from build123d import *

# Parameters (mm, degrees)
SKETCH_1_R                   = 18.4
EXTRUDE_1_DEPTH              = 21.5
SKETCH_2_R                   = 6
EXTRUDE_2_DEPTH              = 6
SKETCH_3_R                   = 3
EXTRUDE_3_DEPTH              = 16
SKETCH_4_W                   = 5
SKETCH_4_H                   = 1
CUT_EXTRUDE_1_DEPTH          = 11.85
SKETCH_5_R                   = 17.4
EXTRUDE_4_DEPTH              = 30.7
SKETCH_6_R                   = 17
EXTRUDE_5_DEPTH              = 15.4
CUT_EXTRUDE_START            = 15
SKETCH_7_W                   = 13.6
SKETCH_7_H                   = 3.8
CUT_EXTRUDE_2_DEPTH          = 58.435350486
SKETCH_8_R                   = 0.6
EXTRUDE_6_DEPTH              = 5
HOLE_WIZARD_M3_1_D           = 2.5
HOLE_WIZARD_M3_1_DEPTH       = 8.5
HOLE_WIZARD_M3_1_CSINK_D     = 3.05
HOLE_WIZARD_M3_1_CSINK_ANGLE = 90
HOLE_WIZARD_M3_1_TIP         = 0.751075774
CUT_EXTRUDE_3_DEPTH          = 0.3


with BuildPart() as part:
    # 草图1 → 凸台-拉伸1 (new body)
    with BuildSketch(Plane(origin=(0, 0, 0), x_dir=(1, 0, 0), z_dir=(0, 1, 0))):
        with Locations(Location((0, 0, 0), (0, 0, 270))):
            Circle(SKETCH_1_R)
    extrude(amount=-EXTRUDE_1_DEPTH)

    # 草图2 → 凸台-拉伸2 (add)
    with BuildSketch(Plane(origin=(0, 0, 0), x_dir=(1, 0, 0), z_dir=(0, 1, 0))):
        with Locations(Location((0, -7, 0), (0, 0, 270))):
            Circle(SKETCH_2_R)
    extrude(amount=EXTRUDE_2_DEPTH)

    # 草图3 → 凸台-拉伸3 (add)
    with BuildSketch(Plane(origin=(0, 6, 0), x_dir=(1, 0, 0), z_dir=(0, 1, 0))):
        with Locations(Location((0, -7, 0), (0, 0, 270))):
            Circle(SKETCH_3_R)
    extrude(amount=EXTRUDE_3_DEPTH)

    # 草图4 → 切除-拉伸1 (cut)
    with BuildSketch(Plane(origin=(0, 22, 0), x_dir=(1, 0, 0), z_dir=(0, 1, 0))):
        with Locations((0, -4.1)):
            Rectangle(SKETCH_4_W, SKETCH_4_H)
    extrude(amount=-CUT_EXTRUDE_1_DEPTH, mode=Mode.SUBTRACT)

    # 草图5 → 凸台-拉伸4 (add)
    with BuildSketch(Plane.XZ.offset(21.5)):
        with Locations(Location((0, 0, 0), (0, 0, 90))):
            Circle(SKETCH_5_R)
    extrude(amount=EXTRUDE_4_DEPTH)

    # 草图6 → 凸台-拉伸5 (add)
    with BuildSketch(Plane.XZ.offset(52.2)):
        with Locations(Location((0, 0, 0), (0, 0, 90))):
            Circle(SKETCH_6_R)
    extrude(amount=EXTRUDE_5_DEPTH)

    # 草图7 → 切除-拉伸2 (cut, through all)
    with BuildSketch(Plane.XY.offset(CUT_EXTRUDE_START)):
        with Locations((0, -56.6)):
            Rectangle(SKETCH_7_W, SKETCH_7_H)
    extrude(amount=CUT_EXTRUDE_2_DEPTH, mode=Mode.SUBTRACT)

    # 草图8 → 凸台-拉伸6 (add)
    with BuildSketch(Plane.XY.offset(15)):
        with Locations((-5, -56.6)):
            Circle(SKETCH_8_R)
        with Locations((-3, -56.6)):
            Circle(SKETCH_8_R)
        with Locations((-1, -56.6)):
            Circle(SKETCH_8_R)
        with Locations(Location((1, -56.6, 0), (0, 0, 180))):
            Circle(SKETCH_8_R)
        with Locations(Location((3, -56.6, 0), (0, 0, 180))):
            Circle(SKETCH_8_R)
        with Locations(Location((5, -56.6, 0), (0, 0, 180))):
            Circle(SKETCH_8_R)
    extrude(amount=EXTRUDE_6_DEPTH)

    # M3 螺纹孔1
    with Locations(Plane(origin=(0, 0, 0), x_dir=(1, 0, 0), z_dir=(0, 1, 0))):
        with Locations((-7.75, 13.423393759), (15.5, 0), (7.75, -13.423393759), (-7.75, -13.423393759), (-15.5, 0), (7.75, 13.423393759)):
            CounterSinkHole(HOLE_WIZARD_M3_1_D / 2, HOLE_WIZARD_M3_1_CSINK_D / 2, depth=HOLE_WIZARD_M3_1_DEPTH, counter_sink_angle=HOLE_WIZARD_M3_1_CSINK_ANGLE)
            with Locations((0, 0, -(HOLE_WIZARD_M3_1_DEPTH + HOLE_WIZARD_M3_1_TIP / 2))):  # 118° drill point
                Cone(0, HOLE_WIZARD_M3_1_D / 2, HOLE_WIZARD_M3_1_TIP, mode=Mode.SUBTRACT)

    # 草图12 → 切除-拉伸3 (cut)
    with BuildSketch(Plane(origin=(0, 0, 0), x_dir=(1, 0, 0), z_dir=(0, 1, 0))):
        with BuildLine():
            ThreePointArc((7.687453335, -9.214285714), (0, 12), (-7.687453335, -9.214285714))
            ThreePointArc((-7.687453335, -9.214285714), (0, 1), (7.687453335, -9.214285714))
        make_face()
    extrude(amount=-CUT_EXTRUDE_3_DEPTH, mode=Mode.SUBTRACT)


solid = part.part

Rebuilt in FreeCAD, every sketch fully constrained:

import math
import FreeCAD as App
import Part
import Sketcher
Q = App.Units.Quantity


def add_polygon(sketch, points):
    """Adds a closed chain of lines whose ends are joined by coincident constraints."""
    first, n = sketch.GeometryCount, len(points)
    for a, b in zip(points, points[1:] + points[:1]):
        sketch.addGeometry(Part.LineSegment(App.Vector(*a, 0), App.Vector(*b, 0)), False)
    for i in range(n):
        sketch.addConstraint(Sketcher.Constraint("Coincident", first + i, 2, first + (i + 1) % n, 1))

doc = App.newDocument("Part")
params = doc.addObject("Spreadsheet::Sheet", "Params")
for row, (alias, value) in enumerate([
    ("sketch1_diameter", "36.8 mm"),
    ("pad1_length", "21.5 mm"),
    ("sketch2_diameter", "12 mm"),
    ("pad2_length", "6 mm"),
    ("sketch3_diameter", "6 mm"),
    ("pad3_length", "16 mm"),
    ("sketch4_width", "5 mm"),
    ("sketch4_height", "1 mm"),
    ("pocket1_length", "11.85 mm"),
    ("sketch5_diameter", "34.8 mm"),
    ("pad4_length", "30.7 mm"),
    ("sketch6_diameter", "34 mm"),
    ("pad5_length", "15.4 mm"),
    ("sketch7_width", "13.6 mm"),
    ("sketch7_height", "3.8 mm"),
    ("sketch8_diameter", "1.2 mm"),
    ("pad6_length", "5 mm"),
    ("sketch9_diameter", "2.5 mm"),
    ("hole_diameter", "2.5 mm"),
    ("hole_depth", "8.5 mm"),
    ("hole_csink_diameter", "3.05 mm"),
    ("sketch10_radius", "12 mm"),
    ("sketch10_radius2", "8 mm"),
    ("pocket3_length", "0.3 mm"),
], start=1):
    params.set(f"A{row}", alias)
    params.set(f"B{row}", "=" + value)
    params.setAlias(f"B{row}", alias)

body = doc.addObject("PartDesign::Body", "Body")

# Sketch on XZ plane
sketch1 = body.newObject("Sketcher::SketchObject", "Sketch")
sketch1.AttachmentSupport = (doc.getObject("XZ_Plane"), [""])
sketch1.MapMode = "FlatFace"
sketch1.addGeometry(Part.Circle(App.Vector(0, 0, 0), App.Vector(0, 0, 1), 18), False)
sketch1.addConstraint([
    Sketcher.Constraint("Coincident", 0, 3, -1, 1),
    Sketcher.Constraint("Diameter", 0, Q("36.8 mm")),
])
sketch1.setExpression("Constraints[1]", "Params.sketch1_diameter")
pad1 = body.newObject("PartDesign::Pad", "Pad")
pad1.Profile = sketch1
pad1.setExpression("Length", "Params.pad1_length")

# Sketch on XZ plane
sketch2 = body.newObject("Sketcher::SketchObject", "Sketch001")
sketch2.AttachmentSupport = (doc.getObject("XZ_Plane"), [""])
sketch2.MapMode = "FlatFace"
sketch2.addGeometry(Part.Circle(App.Vector(0, 7, 0), App.Vector(0, 0, 1), 6), False)
sketch2.addConstraint([
    Sketcher.Constraint("PointOnObject", 0, 3, -2),
    Sketcher.Constraint("Diameter", 0, Q("12 mm")),
    Sketcher.Constraint("DistanceY", -1, 1, 0, 3, Q("7 mm")),
])
sketch2.setExpression("Constraints[1]", "Params.sketch2_diameter")
pad2 = body.newObject("PartDesign::Pad", "Pad001")
pad2.Profile = sketch2
pad2.setExpression("Length", "Params.pad2_length")
pad2.Reversed = True

# Sketch on XZ plane
sketch3 = body.newObject("Sketcher::SketchObject", "Sketch002")
sketch3.AttachmentSupport = (doc.getObject("XZ_Plane"), [""])
sketch3.MapMode = "FlatFace"
sketch3.AttachmentOffset = App.Placement(App.Vector(0, 0, -6), App.Rotation())
sketch3.addGeometry(Part.Circle(App.Vector(0, 7, 0), App.Vector(0, 0, 1), 3), False)
sketch3.addConstraint([
    Sketcher.Constraint("PointOnObject", 0, 3, -2),
    Sketcher.Constraint("Diameter", 0, Q("6 mm")),
    Sketcher.Constraint("DistanceY", -1, 1, 0, 3, Q("7 mm")),
])
sketch3.setExpression("Constraints[1]", "Params.sketch3_diameter")
pad3 = body.newObject("PartDesign::Pad", "Pad002")
pad3.Profile = sketch3
pad3.setExpression("Length", "Params.pad3_length")
pad3.Reversed = True

# Sketch on XZ plane
sketch4 = body.newObject("Sketcher::SketchObject", "Sketch003")
sketch4.AttachmentSupport = (doc.getObject("XZ_Plane"), [""])
sketch4.MapMode = "FlatFace"
sketch4.AttachmentOffset = App.Placement(App.Vector(0, 0, -22), App.Rotation())
add_polygon(sketch4, [(-2.5, 3.6), (-2.5, 4.6), (2.5, 4.6), (2.5, 3.6)])  # lines 0-3
sketch4.addConstraint([
    Sketcher.Constraint("Vertical", 0),
    Sketcher.Constraint("Horizontal", 1),
    Sketcher.Constraint("Vertical", 2),
    Sketcher.Constraint("Horizontal", 3),
    Sketcher.Constraint("DistanceX", 1, 1, 1, 2, Q("5 mm")),
    Sketcher.Constraint("DistanceY", 0, 1, 0, 2, Q("1 mm")),
    Sketcher.Constraint("DistanceX", 0, 2, -1, 1, Q("2.5 mm")),
    Sketcher.Constraint("DistanceY", -1, 1, 0, 2, Q("4.6 mm")),
])
sketch4.setExpression("Constraints[8]", "Params.sketch4_width")
sketch4.setExpression("Constraints[9]", "Params.sketch4_height")
pocket1 = body.newObject("PartDesign::Pocket", "Pocket")
pocket1.Profile = sketch4
pocket1.setExpression("Length", "Params.pocket1_length")
pocket1.Reversed = True

# Sketch on XZ plane
sketch5 = body.newObject("Sketcher::SketchObject", "Sketch004")
sketch5.AttachmentSupport = (doc.getObject("XZ_Plane"), [""])
sketch5.MapMode = "FlatFace"
sketch5.AttachmentOffset = App.Placement(App.Vector(0, 0, 21.5), App.Rotation())
sketch5.addGeometry(Part.Circle(App.Vector(0, 0, 0), App.Vector(0, 0, 1), 17), False)
sketch5.addConstraint([
    Sketcher.Constraint("Coincident", 0, 3, -1, 1),
    Sketcher.Constraint("Diameter", 0, Q("34.8 mm")),
])
sketch5.setExpression("Constraints[1]", "Params.sketch5_diameter")
pad4 = body.newObject("PartDesign::Pad", "Pad003")
pad4.Profile = sketch5
pad4.setExpression("Length", "Params.pad4_length")

# Sketch on XZ plane
sketch6 = body.newObject("Sketcher::SketchObject", "Sketch005")
sketch6.AttachmentSupport = (doc.getObject("XZ_Plane"), [""])
sketch6.MapMode = "FlatFace"
sketch6.AttachmentOffset = App.Placement(App.Vector(0, 0, 52.2), App.Rotation())
sketch6.addGeometry(Part.Circle(App.Vector(0, 0, 0), App.Vector(0, 0, 1), 17), False)
sketch6.addConstraint([
    Sketcher.Constraint("Coincident", 0, 3, -1, 1),
    Sketcher.Constraint("Diameter", 0, Q("34 mm")),
])
sketch6.setExpression("Constraints[1]", "Params.sketch6_diameter")
pad5 = body.newObject("PartDesign::Pad", "Pad004")
pad5.Profile = sketch6
pad5.setExpression("Length", "Params.pad5_length")

# Sketch on XY plane
sketch7 = body.newObject("Sketcher::SketchObject", "Sketch006")
sketch7.AttachmentSupport = (doc.getObject("XY_Plane"), [""])
sketch7.MapMode = "FlatFace"
sketch7.AttachmentOffset = App.Placement(App.Vector(0, 0, 15), App.Rotation())
add_polygon(sketch7, [(-6.8, -54.7), (-6.8, -58.5), (6.8, -58.5), (6.8, -54.7)])  # lines 0-3
sketch7.addConstraint([
    Sketcher.Constraint("Vertical", 0),
    Sketcher.Constraint("Horizontal", 1),
    Sketcher.Constraint("Vertical", 2),
    Sketcher.Constraint("Horizontal", 3),
    Sketcher.Constraint("DistanceX", 1, 1, 1, 2, Q("13.6 mm")),
    Sketcher.Constraint("DistanceY", 0, 2, 0, 1, Q("3.8 mm")),
    Sketcher.Constraint("DistanceX", 0, 2, -1, 1, Q("6.8 mm")),
    Sketcher.Constraint("DistanceY", 0, 2, -1, 1, Q("58.5 mm")),
])
sketch7.setExpression("Constraints[8]", "Params.sketch7_width")
sketch7.setExpression("Constraints[9]", "Params.sketch7_height")
pocket2 = body.newObject("PartDesign::Pocket", "Pocket001")
pocket2.Profile = sketch7
pocket2.Type = "ThroughAll"
pocket2.Reversed = True

# Sketch on XY plane
sketch8 = body.newObject("Sketcher::SketchObject", "Sketch007")
sketch8.AttachmentSupport = (doc.getObject("XY_Plane"), [""])
sketch8.MapMode = "FlatFace"
sketch8.AttachmentOffset = App.Placement(App.Vector(0, 0, 15), App.Rotation())
sketch8.addGeometry([
    Part.Circle(App.Vector(-5, -56.6, 0), App.Vector(0, 0, 1), 0.6),  # 0
    Part.Circle(App.Vector(-3, -56.6, 0), App.Vector(0, 0, 1), 0.6),  # 1
    Part.Circle(App.Vector(-1, -56.6, 0), App.Vector(0, 0, 1), 0.6),  # 2
    Part.Circle(App.Vector(1, -56.6, 0), App.Vector(0, 0, 1), 0.6),  # 3
    Part.Circle(App.Vector(3, -56.6, 0), App.Vector(0, 0, 1), 0.6),  # 4
    Part.Circle(App.Vector(5, -56.6, 0), App.Vector(0, 0, 1), 0.6),  # 5
], False)
sketch8.addConstraint([
    Sketcher.Constraint("Equal", 0, 1),
    Sketcher.Constraint("Equal", 1, 2),
    Sketcher.Constraint("Equal", 2, 3),
    Sketcher.Constraint("Equal", 3, 4),
    Sketcher.Constraint("Equal", 4, 5),
    Sketcher.Constraint("Symmetric", 2, 3, 3, 3, -2),
    Sketcher.Constraint("Symmetric", 1, 3, 4, 3, -2),
    Sketcher.Constraint("Symmetric", 0, 3, 5, 3, -2),
    Sketcher.Constraint("Horizontal", 0, 3, 1, 3),
    Sketcher.Constraint("Horizontal", 1, 3, 2, 3),
    Sketcher.Constraint("Diameter", 0, Q("1.2 mm")),
    Sketcher.Constraint("DistanceX", 0, 3, -1, 1, Q("5 mm")),
    Sketcher.Constraint("DistanceX", 1, 3, -1, 1, Q("3 mm")),
    Sketcher.Constraint("DistanceX", 2, 3, -1, 1, Q("1 mm")),
    Sketcher.Constraint("DistanceY", 0, 3, -1, 1, Q("56.6 mm")),
])
sketch8.setExpression("Constraints[10]", "Params.sketch8_diameter")
pad6 = body.newObject("PartDesign::Pad", "Pad005")
pad6.Profile = sketch8
pad6.setExpression("Length", "Params.pad6_length")

# Sketch on XZ plane
sketch9 = body.newObject("Sketcher::SketchObject", "Sketch008")
sketch9.AttachmentSupport = (doc.getObject("XZ_Plane"), [""])
sketch9.MapMode = "FlatFace"
sketch9.addGeometry([
    Part.Circle(App.Vector(-7.8, -13.4, 0), App.Vector(0, 0, 1), 1.2),  # 0
    Part.Circle(App.Vector(15.5, 0, 0), App.Vector(0, 0, 1), 1.2),  # 1
    Part.Circle(App.Vector(7.8, 13.4, 0), App.Vector(0, 0, 1), 1.2),  # 2
    Part.Circle(App.Vector(-7.8, 13.4, 0), App.Vector(0, 0, 1), 1.2),  # 3
    Part.Circle(App.Vector(-15.5, 0, 0), App.Vector(0, 0, 1), 1.2),  # 4
    Part.Circle(App.Vector(7.8, -13.4, 0), App.Vector(0, 0, 1), 1.2),  # 5
], False)
sketch9.addConstraint([
    Sketcher.Constraint("Equal", 0, 1),
    Sketcher.Constraint("Equal", 1, 2),
    Sketcher.Constraint("Equal", 2, 3),
    Sketcher.Constraint("Equal", 3, 4),
    Sketcher.Constraint("Equal", 4, 5),
    Sketcher.Constraint("Symmetric", 0, 3, 2, 3, -1, 1),
    Sketcher.Constraint("Symmetric", 1, 3, 4, 3, -1, 1),
    Sketcher.Constraint("Symmetric", 3, 3, 5, 3, -1, 1),
    Sketcher.Constraint("Symmetric", 2, 3, 3, 3, -2),
    Sketcher.Constraint("PointOnObject", 1, 3, -1),
    Sketcher.Constraint("Diameter", 0, Q("2.5 mm")),
    Sketcher.Constraint("DistanceX", 4, 3, 1, 3, Q("31 mm")),
    Sketcher.Constraint("DistanceX", 0, 3, 2, 3, Q("15.5 mm")),
    Sketcher.Constraint("DistanceY", 0, 3, -1, 1, Q("13.423394 mm")),
])
sketch9.setExpression("Constraints[10]", "Params.sketch9_diameter")
doc.recompute()
hole = body.newObject("PartDesign::Hole", "Hole")
hole.Profile = sketch9
hole.ThreadType = "None"
hole.setExpression("Diameter", "Params.hole_diameter")
hole.DepthType = "Dimension"
hole.setExpression("Depth", "Params.hole_depth")
hole.DrillPoint = "Angled"
hole.DrillPointAngle = 118
hole.HoleCutType = "Countersink"
hole.setExpression("HoleCutDiameter", "Params.hole_csink_diameter")
hole.HoleCutCountersinkAngle = 90
hole.Reversed = True

# Sketch on XZ plane
sketch10 = body.newObject("Sketcher::SketchObject", "Sketch009")
sketch10.AttachmentSupport = (doc.getObject("XZ_Plane"), [""])
sketch10.MapMode = "FlatFace"
sketch10.addGeometry([
    Part.ArcOfCircle(Part.Circle(App.Vector(0, 0, 0), App.Vector(0, 0, 1), 12), math.radians(130), math.radians(410)),
    Part.ArcOfCircle(Part.Circle(App.Vector(0, 7, 0), App.Vector(0, 0, 1), 8), math.radians(164), math.radians(376)),
], False)
sketch10.addConstraint([
    Sketcher.Constraint("Coincident", 0, 1, 1, 1),
    Sketcher.Constraint("Coincident", 1, 2, 0, 2),
    Sketcher.Constraint("Coincident", 0, 3, -1, 1),
    Sketcher.Constraint("PointOnObject", 1, 3, -2),
    Sketcher.Constraint("Radius", 0, Q("12 mm")),
    Sketcher.Constraint("Radius", 1, Q("8 mm")),
    Sketcher.Constraint("DistanceY", -1, 1, 1, 3, Q("7 mm")),
])
sketch10.setExpression("Constraints[4]", "Params.sketch10_radius")
sketch10.setExpression("Constraints[5]", "Params.sketch10_radius2")
pocket3 = body.newObject("PartDesign::Pocket", "Pocket002")
pocket3.Profile = sketch10
pocket3.setExpression("Length", "Params.pocket3_length")
pocket3.Reversed = True

doc.recompute()
